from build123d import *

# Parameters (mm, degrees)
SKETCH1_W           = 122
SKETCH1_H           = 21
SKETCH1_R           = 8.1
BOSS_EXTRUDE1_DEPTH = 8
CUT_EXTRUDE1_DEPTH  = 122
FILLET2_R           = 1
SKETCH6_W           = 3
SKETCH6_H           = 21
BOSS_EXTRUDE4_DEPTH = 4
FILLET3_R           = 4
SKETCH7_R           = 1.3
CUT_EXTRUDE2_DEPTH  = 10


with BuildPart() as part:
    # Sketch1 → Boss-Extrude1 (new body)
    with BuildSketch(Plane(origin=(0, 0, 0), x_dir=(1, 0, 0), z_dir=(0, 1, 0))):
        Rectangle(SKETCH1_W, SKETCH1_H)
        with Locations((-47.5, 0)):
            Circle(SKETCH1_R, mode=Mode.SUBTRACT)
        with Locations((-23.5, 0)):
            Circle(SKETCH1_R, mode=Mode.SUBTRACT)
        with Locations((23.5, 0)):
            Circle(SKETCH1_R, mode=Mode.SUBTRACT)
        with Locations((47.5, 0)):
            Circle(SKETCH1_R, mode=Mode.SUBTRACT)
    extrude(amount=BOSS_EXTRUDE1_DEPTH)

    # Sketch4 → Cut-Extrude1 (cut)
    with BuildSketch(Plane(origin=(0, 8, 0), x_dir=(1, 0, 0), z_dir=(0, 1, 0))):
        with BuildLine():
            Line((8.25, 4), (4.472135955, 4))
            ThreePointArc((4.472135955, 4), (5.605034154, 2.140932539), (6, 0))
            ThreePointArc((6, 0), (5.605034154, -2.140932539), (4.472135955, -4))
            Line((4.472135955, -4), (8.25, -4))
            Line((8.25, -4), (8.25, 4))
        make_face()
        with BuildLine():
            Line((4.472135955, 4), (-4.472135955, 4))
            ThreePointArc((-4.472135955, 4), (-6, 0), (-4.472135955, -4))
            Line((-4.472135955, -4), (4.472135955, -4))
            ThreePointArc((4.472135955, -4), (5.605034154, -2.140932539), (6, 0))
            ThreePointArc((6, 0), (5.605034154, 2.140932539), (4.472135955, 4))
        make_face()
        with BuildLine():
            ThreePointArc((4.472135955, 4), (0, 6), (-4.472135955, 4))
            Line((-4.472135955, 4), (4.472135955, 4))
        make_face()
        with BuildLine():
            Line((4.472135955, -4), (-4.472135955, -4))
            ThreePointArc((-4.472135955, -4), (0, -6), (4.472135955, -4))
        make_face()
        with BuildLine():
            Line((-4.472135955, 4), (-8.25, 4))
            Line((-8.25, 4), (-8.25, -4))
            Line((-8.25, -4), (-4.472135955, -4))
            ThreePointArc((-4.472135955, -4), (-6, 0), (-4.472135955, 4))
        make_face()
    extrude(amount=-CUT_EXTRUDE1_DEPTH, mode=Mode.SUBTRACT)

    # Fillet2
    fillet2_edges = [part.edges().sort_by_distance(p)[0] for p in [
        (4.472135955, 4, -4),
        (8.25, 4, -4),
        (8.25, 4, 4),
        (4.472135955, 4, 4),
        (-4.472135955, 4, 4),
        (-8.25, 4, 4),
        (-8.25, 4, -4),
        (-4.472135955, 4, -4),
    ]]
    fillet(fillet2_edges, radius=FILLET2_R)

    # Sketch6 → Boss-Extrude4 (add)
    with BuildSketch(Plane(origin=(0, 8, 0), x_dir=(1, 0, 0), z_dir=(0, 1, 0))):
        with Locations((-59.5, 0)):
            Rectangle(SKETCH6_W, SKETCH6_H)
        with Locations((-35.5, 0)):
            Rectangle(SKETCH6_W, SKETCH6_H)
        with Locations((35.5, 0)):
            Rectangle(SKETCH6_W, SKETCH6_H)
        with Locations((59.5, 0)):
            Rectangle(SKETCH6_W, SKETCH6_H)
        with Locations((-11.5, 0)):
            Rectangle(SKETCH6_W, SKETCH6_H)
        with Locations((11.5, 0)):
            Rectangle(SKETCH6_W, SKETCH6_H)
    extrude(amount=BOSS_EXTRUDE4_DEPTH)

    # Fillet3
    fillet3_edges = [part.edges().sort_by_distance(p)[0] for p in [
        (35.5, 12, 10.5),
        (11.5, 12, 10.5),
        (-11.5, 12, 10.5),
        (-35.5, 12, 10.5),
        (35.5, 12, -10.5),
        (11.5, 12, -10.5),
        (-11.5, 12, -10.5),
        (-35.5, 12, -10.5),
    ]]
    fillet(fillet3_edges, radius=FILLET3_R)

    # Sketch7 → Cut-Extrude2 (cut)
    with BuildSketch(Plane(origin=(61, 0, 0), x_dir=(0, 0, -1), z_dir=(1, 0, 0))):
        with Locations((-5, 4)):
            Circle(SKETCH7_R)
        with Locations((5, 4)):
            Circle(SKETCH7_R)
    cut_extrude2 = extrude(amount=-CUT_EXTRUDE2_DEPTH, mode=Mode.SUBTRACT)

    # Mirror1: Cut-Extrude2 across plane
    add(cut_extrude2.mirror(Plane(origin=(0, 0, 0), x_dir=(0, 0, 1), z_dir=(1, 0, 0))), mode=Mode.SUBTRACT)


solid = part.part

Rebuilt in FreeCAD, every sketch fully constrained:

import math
import FreeCAD as App
import Part
import Sketcher


def edges_at(feature, points):
    """Names of the edges that pass closest to the given points."""
    edges = feature.Shape.Edges
    near = lambda p: min(range(len(edges)), key=lambda i: edges[i].distToShape(Part.Vertex(*p))[0])
    return sorted({f"Edge{near(p) + 1}" for p in points})

doc = App.newDocument("Part")
body = doc.addObject("PartDesign::Body", "Body")

sketch1 = doc.addObject("Sketcher::SketchObject", "Sketch")
body.addObject(sketch1)
sketch1.AttachmentSupport = (doc.XZ_Plane, [""])
sketch1.MapMode = "FlatFace"
sketch1.addGeometry([
    Part.LineSegment(App.Vector(-61, -10, 0), App.Vector(-61, 10, 0)),
    Part.LineSegment(App.Vector(-61, 10, 0), App.Vector(61, 10, 0)),
    Part.LineSegment(App.Vector(61, 10, 0), App.Vector(61, -10, 0)),
    Part.LineSegment(App.Vector(61, -10, 0), App.Vector(-61, -10, 0)),
    Part.Circle(App.Vector(-48, 0, 0), App.Vector(0, 0, 1), 8),
    Part.Circle(App.Vector(-24, 0, 0), App.Vector(0, 0, 1), 8),
    Part.Circle(App.Vector(24, 0, 0), App.Vector(0, 0, 1), 8),
    Part.Circle(App.Vector(48, 0, 0), App.Vector(0, 0, 1), 8),
], False)
sketch1.addConstraint([
    Sketcher.Constraint("Coincident", 0, 2, 1, 1),
    Sketcher.Constraint("Coincident", 1, 2, 2, 1),
    Sketcher.Constraint("Coincident", 2, 2, 3, 1),
    Sketcher.Constraint("Coincident", 3, 2, 0, 1),
    Sketcher.Constraint("Vertical", 0),
    Sketcher.Constraint("Horizontal", 1),
    Sketcher.Constraint("Vertical", 2),
    Sketcher.Constraint("Horizontal", 3),
    Sketcher.Constraint("Equal", 4, 5),
    Sketcher.Constraint("Equal", 5, 6),
    Sketcher.Constraint("Equal", 6, 7),
    Sketcher.Constraint("Symmetric", 5, 3, 6, 3, -1, 1),
    Sketcher.Constraint("Symmetric", 4, 3, 7, 3, -1, 1),
    Sketcher.Constraint("Symmetric", 0, 2, 2, 2, -1, 1),
    Sketcher.Constraint("PointOnObject", 4, 3, -1),
    Sketcher.Constraint("PointOnObject", 5, 3, -1),
    Sketcher.Constraint("Diameter", 4, 16.2),
    Sketcher.Constraint("DistanceX", 1, 1, 1, 2, 122.0),
    Sketcher.Constraint("DistanceY", 0, 1, 0, 2, 21.0),
    Sketcher.Constraint("DistanceX", 4, 3, 5, 3, 24.0),
    Sketcher.Constraint("DistanceX", 5, 3, 6, 3, 47.0),
])
pad1 = doc.addObject("PartDesign::Pad", "Pad")
body.addObject(pad1)
pad1.Profile = sketch1
pad1.Length = 8
pad1.Reversed = True

sketch2 = doc.addObject("Sketcher::SketchObject", "Sketch001")
body.addObject(sketch2)
sketch2.AttachmentSupport = (doc.XZ_Plane, [""])
sketch2.MapMode = "FlatFace"
sketch2.AttachmentOffset = App.Placement(App.Vector(0, 0, -8), App.Rotation())
sketch2.addGeometry([
    Part.LineSegment(App.Vector(8.2, -4, 0), App.Vector(4.5, -4, 0)),
    Part.ArcOfCircle(Part.Circle(App.Vector(0, 0, 0), App.Vector(0, 0, 1), 6), math.radians(-138), math.radians(-42)),
    Part.LineSegment(App.Vector(-4.5, -4, 0), App.Vector(-8.2, -4, 0)),
    Part.LineSegment(App.Vector(-8.2, -4, 0), App.Vector(-8.2, 4, 0)),
    Part.LineSegment(App.Vector(-8.2, 4, 0), App.Vector(-4.5, 4, 0)),
    Part.ArcOfCircle(Part.Circle(App.Vector(0, 0, 0), App.Vector(0, 0, 1), 6), math.radians(42), math.radians(138)),
    Part.LineSegment(App.Vector(4.5, 4, 0), App.Vector(8.2, 4, 0)),
    Part.LineSegment(App.Vector(8.2, 4, 0), App.Vector(8.2, -4, 0)),
], False)
sketch2.addConstraint([
    Sketcher.Constraint("Coincident", 0, 2, 1, 2),
    Sketcher.Constraint("Coincident", 1, 1, 2, 1),
    Sketcher.Constraint("Coincident", 2, 2, 3, 1),
    Sketcher.Constraint("Coincident", 3, 2, 4, 1),
    Sketcher.Constraint("Coincident", 4, 2, 5, 2),
    Sketcher.Constraint("Coincident", 5, 1, 6, 1),
    Sketcher.Constraint("Coincident", 6, 2, 7, 1),
    Sketcher.Constraint("Coincident", 7, 2, 0, 1),
    Sketcher.Constraint("Horizontal", 0),
    Sketcher.Constraint("Horizontal", 2),
    Sketcher.Constraint("Vertical", 3),
    Sketcher.Constraint("Horizontal", 4),
    Sketcher.Constraint("Horizontal", 6),
    Sketcher.Constraint("Vertical", 7),
    Sketcher.Constraint("Coincident", 1, 3, -1, 1),
    Sketcher.Constraint("Coincident", 5, 3, -1, 1),
    Sketcher.Constraint("Equal", 1, 5),
    Sketcher.Constraint("Symmetric", 2, 2, 6, 2, -1, 1),
    Sketcher.Constraint("Horizontal", 0, 2, 1, 1),
    Sketcher.Constraint("Horizontal", 4, 2, 5, 1),
    Sketcher.Constraint("Radius", 1, 6.0),
    Sketcher.Constraint("DistanceY", 3, 1, 3, 2, 8.0),
    Sketcher.Constraint("DistanceX", 2, 2, -1, 1, 8.25),
])
pocket1 = doc.addObject("PartDesign::Pocket", "Pocket")
body.addObject(pocket1)
pocket1.Profile = sketch2
pocket1.Length = 122
pocket1.Reversed = True
doc.recompute()

fillet = doc.addObject("PartDesign::Fillet", "Fillet")
body.addObject(fillet)
fillet.Base = (pocket1, edges_at(pocket1, [
    (4.472, 4, -4),
    (8.25, 4, -4),
    (8.25, 4, 4),
    (4.472, 4, 4),
    (-4.472, 4, 4),
    (-8.25, 4, 4),
    (-8.25, 4, -4),
    (-4.472, 4, -4),
]))
fillet.Radius = 1

sketch3 = doc.addObject("Sketcher::SketchObject", "Sketch002")
body.addObject(sketch3)
sketch3.AttachmentSupport = (doc.XZ_Plane, [""])
sketch3.MapMode = "FlatFace"
sketch3.AttachmentOffset = App.Placement(App.Vector(0, 0, -8), App.Rotation())
sketch3.addGeometry([
    Part.LineSegment(App.Vector(-61, -10.5, 0), App.Vector(-61, 10.5, 0)),
    Part.LineSegment(App.Vector(-61, 10.5, 0), App.Vector(-58, 10.5, 0)),
    Part.LineSegment(App.Vector(-58, 10.5, 0), App.Vector(-58, -10.5, 0)),
    Part.LineSegment(App.Vector(-58, -10.5, 0), App.Vector(-61, -10.5, 0)),
    Part.LineSegment(App.Vector(-37, -10.5, 0), App.Vector(-37, 10.5, 0)),
    Part.LineSegment(App.Vector(-37, 10.5, 0), App.Vector(-34, 10.5, 0)),
    Part.LineSegment(App.Vector(-34, 10.5, 0), App.Vector(-34, -10.5, 0)),
    Part.LineSegment(App.Vector(-34, -10.5, 0), App.Vector(-37, -10.5, 0)),
    Part.LineSegment(App.Vector(34, -10.5, 0), App.Vector(34, 10.5, 0)),
    Part.LineSegment(App.Vector(34, 10.5, 0), App.Vector(37, 10.5, 0)),
    Part.LineSegment(App.Vector(37, 10.5, 0), App.Vector(37, -10.5, 0)),
    Part.LineSegment(App.Vector(37, -10.5, 0), App.Vector(34, -10.5, 0)),
    Part.LineSegment(App.Vector(58, -10.5, 0), App.Vector(58, 10.5, 0)),
    Part.LineSegment(App.Vector(58, 10.5, 0), App.Vector(61, 10.5, 0)),
    Part.LineSegment(App.Vector(61, 10.5, 0), App.Vector(61, -10.5, 0)),
    Part.LineSegment(App.Vector(61, -10.5, 0), App.Vector(58, -10.5, 0)),
    Part.LineSegment(App.Vector(-13, -10.5, 0), App.Vector(-13, 10.5, 0)),
    Part.LineSegment(App.Vector(-13, 10.5, 0), App.Vector(-10, 10.5, 0)),
    Part.LineSegment(App.Vector(-10, 10.5, 0), App.Vector(-10, -10.5, 0)),
    Part.LineSegment(App.Vector(-10, -10.5, 0), App.Vector(-13, -10.5, 0)),
    Part.LineSegment(App.Vector(10, -10.5, 0), App.Vector(10, 10.5, 0)),
    Part.LineSegment(App.Vector(10, 10.5, 0), App.Vector(13, 10.5, 0)),
    Part.LineSegment(App.Vector(13, 10.5, 0), App.Vector(13, -10.5, 0)),
    Part.LineSegment(App.Vector(13, -10.5, 0), App.Vector(10, -10.5, 0)),
], False)
sketch3.addConstraint([
    Sketcher.Constraint("Coincident", 0, 2, 1, 1),
    Sketcher.Constraint("Coincident", 1, 2, 2, 1),
    Sketcher.Constraint("Coincident", 2, 2, 3, 1),
    Sketcher.Constraint("Coincident", 3, 2, 0, 1),
    Sketcher.Constraint("Coincident", 4, 2, 5, 1),
    Sketcher.Constraint("Coincident", 5, 2, 6, 1),
    Sketcher.Constraint("Coincident", 6, 2, 7, 1),
    Sketcher.Constraint("Coincident", 7, 2, 4, 1),
    Sketcher.Constraint("Coincident", 8, 2, 9, 1),
    Sketcher.Constraint("Coincident", 9, 2, 10, 1),
    Sketcher.Constraint("Coincident", 10, 2, 11, 1),
    Sketcher.Constraint("Coincident", 11, 2, 8, 1),
    Sketcher.Constraint("Coincident", 12, 2, 13, 1),
    Sketcher.Constraint("Coincident", 13, 2, 14, 1),
    Sketcher.Constraint("Coincident", 14, 2, 15, 1),
    Sketcher.Constraint("Coincident", 15, 2, 12, 1),
    Sketcher.Constraint("Coincident", 16, 2, 17, 1),
    Sketcher.Constraint("Coincident", 17, 2, 18, 1),
    Sketcher.Constraint("Coincident", 18, 2, 19, 1),
    Sketcher.Constraint("Coincident", 19, 2, 16, 1),
    Sketcher.Constraint("Coincident", 20, 2, 21, 1),
    Sketcher.Constraint("Coincident", 21, 2, 22, 1),
    Sketcher.Constraint("Coincident", 22, 2, 23, 1),
    Sketcher.Constraint("Coincident", 23, 2, 20, 1),
    Sketcher.Constraint("Vertical", 0),
    Sketcher.Constraint("Horizontal", 1),
    Sketcher.Constraint("Vertical", 2),
    Sketcher.Constraint("Horizontal", 3),
    Sketcher.Constraint("Vertical", 4),
    Sketcher.Constraint("Horizontal", 5),
    Sketcher.Constraint("Vertical", 6),
    Sketcher.Constraint("Horizontal", 7),
    Sketcher.Constraint("Vertical", 8),
    Sketcher.Constraint("Horizontal", 9),
    Sketcher.Constraint("Vertical", 10),
    Sketcher.Constraint("Horizontal", 11),
    Sketcher.Constraint("Vertical", 12),
    Sketcher.Constraint("Horizontal", 13),
    Sketcher.Constraint("Vertical", 14),
    Sketcher.Constraint("Horizontal", 15),
    Sketcher.Constraint("Vertical", 16),
    Sketcher.Constraint("Horizontal", 17),
    Sketcher.Constraint("Vertical", 18),
    Sketcher.Constraint("Horizontal", 19),
    Sketcher.Constraint("Vertical", 20),
    Sketcher.Constraint("Horizontal", 21),
    Sketcher.Constraint("Vertical", 22),
    Sketcher.Constraint("Horizontal", 23),
    Sketcher.Constraint("Symmetric", 6, 2, 8, 2, -1, 1),
    Sketcher.Constraint("Symmetric", 4, 2, 10, 2, -1, 1),
    Sketcher.Constraint("Symmetric", 2, 2, 12, 2, -1, 1),
    Sketcher.Constraint("Symmetric", 0, 2, 14, 2, -1, 1),
    Sketcher.Constraint("Symmetric", 18, 2, 20, 2, -1, 1),
    Sketcher.Constraint("Symmetric", 16, 2, 22, 2, -1, 1),
    Sketcher.Constraint("Horizontal", 1, 2, 4, 2),
    Sketcher.Constraint("Horizontal", 3, 2, 6, 2),
    Sketcher.Constraint("Horizontal", 5, 2, 8, 2),
    Sketcher.Constraint("Horizontal", 13, 2, 16, 2),
    Sketcher.Constraint("Horizontal", 15, 2, 18, 2),
    Sketcher.Constraint("Equal", 3, 5),
    Sketcher.Constraint("Equal", 15, 17),
    Sketcher.Constraint("DistanceX", 1, 1, 1, 2, 3.0),
    Sketcher.Constraint("DistanceY", 0, 1, 0, 2, 21.0),
    Sketcher.Constraint("DistanceX", 0, 2, -1, 1, 61.0),
    Sketcher.Constraint("DistanceX", 4, 2, -1, 1, 37.0),
    Sketcher.Constraint("DistanceX", 16, 2, -1, 1, 13.0),
])
pad2 = doc.addObject("PartDesign::Pad", "Pad001")
body.addObject(pad2)
pad2.Profile = sketch3
pad2.Length = 4
pad2.Reversed = True
doc.recompute()

fillet2 = doc.addObject("PartDesign::Fillet", "Fillet001")
body.addObject(fillet2)
fillet2.Base = (pad2, edges_at(pad2, [
    (35.5, 12, 10.5),
    (11.5, 12, 10.5),
    (-11.5, 12, 10.5),
    (-35.5, 12, 10.5),
    (35.5, 12, -10.5),
    (11.5, 12, -10.5),
    (-11.5, 12, -10.5),
    (-35.5, 12, -10.5),
]))
fillet2.Radius = 4

sketch4 = doc.addObject("Sketcher::SketchObject", "Sketch003")
body.addObject(sketch4)
sketch4.AttachmentSupport = (doc.YZ_Plane, [""])
sketch4.MapMode = "FlatFace"
sketch4.AttachmentOffset = App.Placement(App.Vector(0, 0, 61), App.Rotation())
sketch4.addGeometry([
    Part.Circle(App.Vector(4, 5, 0), App.Vector(0, 0, 1), 1.3),
    Part.Circle(App.Vector(4, -5, 0), App.Vector(0, 0, 1), 1.3),
], False)
sketch4.addConstraint([
    Sketcher.Constraint("Equal", 0, 1),
    Sketcher.Constraint("Symmetric", 0, 3, 1, 3, -1),
    Sketcher.Constraint("Diameter", 0, 2.6),
    Sketcher.Constraint("DistanceX", -1, 1, 0, 3, 4.0),
    Sketcher.Constraint("DistanceY", -1, 1, 0, 3, 5.0),
])
pocket2 = doc.addObject("PartDesign::Pocket", "Pocket001")
body.addObject(pocket2)
pocket2.Profile = sketch4
pocket2.Length = 10
doc.recompute()

mirrored = doc.addObject("PartDesign::Mirrored", "Mirrored")
body.addObject(mirrored)
mirrored.Originals = [pocket2]
mirrored.MirrorPlane = (doc.YZ_Plane, [""])
body.Tip = mirrored

doc.recompute()
